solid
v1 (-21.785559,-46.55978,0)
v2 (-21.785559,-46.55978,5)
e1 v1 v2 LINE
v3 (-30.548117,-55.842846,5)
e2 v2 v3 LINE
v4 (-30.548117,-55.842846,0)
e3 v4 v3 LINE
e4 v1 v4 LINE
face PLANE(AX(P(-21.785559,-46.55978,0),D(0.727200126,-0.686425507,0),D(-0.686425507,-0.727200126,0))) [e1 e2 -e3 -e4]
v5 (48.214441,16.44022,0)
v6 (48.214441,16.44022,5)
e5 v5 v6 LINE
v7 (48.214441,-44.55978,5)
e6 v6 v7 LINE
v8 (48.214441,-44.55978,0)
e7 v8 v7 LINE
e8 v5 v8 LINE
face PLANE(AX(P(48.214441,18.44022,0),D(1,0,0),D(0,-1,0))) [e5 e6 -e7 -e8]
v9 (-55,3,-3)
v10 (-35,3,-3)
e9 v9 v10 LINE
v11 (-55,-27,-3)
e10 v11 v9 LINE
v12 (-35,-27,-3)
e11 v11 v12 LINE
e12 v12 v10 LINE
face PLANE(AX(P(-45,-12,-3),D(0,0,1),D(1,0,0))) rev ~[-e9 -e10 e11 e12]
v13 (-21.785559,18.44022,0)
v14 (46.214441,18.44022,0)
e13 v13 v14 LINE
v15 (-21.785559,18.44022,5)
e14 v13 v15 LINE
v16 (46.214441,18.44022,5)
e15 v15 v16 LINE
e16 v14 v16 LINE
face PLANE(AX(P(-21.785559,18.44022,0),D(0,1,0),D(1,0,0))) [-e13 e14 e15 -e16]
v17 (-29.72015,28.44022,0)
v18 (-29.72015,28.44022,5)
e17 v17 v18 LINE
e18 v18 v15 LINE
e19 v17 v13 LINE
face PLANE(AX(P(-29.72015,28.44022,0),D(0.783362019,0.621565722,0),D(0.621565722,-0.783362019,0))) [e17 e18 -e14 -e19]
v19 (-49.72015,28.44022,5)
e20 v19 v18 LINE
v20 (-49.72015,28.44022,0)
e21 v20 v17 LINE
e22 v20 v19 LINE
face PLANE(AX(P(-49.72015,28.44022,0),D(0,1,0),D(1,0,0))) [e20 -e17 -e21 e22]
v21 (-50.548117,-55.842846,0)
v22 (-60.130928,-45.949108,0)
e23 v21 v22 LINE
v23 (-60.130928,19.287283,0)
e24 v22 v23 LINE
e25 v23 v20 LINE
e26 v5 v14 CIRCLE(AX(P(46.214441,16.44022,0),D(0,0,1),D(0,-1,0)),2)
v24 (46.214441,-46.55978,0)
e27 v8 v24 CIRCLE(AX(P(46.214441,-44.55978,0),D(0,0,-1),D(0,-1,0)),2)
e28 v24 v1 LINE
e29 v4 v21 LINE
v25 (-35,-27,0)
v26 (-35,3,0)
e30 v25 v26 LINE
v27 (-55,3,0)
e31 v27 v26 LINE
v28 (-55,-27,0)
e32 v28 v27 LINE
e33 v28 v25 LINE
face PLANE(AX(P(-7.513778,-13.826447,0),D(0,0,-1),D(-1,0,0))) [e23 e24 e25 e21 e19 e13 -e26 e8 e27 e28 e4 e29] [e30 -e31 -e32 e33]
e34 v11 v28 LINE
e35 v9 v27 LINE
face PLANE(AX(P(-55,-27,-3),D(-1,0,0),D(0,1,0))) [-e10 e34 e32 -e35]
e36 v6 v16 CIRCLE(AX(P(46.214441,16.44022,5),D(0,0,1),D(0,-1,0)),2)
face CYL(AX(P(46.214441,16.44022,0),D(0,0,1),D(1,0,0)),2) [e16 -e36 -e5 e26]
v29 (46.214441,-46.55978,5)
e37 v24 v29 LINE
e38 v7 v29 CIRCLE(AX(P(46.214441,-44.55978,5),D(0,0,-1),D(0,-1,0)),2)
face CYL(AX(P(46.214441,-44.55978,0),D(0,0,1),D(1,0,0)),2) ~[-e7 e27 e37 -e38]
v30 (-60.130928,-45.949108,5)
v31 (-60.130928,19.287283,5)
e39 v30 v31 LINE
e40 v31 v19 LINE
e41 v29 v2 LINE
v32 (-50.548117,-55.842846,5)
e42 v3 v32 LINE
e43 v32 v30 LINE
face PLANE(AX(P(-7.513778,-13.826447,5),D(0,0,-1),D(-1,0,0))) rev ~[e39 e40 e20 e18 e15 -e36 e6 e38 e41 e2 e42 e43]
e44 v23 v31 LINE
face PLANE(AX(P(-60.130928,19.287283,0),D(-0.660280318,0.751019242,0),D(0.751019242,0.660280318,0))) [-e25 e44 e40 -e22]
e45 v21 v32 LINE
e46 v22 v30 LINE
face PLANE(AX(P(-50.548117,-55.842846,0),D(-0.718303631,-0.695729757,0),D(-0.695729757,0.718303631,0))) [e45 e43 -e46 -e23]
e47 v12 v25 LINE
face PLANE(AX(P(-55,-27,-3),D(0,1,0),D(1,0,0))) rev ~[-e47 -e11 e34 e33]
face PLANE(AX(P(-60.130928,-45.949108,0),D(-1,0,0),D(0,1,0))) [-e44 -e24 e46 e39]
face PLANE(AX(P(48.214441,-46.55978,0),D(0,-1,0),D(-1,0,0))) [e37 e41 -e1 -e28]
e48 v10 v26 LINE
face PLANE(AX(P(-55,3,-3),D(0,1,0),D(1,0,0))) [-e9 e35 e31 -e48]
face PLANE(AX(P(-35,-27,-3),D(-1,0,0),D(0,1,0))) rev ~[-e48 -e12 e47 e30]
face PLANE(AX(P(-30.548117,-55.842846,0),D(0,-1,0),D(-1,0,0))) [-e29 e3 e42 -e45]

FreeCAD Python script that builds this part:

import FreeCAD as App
import Part
import Sketcher
from FreeCAD import Vector


def edges_at(feature, points):
    """Names of the edges that pass closest to the given points."""
    edges = feature.Shape.Edges
    near = lambda p: min(range(len(edges)), key=lambda i: edges[i].distToShape(Part.Vertex(*p))[0])
    return sorted({f"Edge{near(p) + 1}" for p in points})

doc = App.newDocument("Part")
body = doc.addObject("PartDesign::Body", "Body")

sketch1 = body.newObject("Sketcher::SketchObject", "Sketch")
sketch1.AttachmentSupport = (doc.getObject("XY_Plane"), [""])
sketch1.MapMode = "FlatFace"
sketch1.AttachmentOffset = App.Placement(Vector(0, 0, -3), App.Rotation())
sketch1.addGeometry([
    Part.LineSegment(Vector(-55, 3, 0), Vector(-55, -27, 0)),
    Part.LineSegment(Vector(-55, -27, 0), Vector(-35, -27, 0)),
    Part.LineSegment(Vector(-35, -27, 0), Vector(-35, 3, 0)),
    Part.LineSegment(Vector(-35, 3, 0), Vector(-55, 3, 0)),
], False)
sketch1.addConstraint([
    Sketcher.Constraint("Coincident", 0, 2, 1, 1),
    Sketcher.Constraint("Coincident", 1, 2, 2, 1),
    Sketcher.Constraint("Coincident", 2, 2, 3, 1),
    Sketcher.Constraint("Coincident", 3, 2, 0, 1),
    Sketcher.Constraint("Vertical", 0),
    Sketcher.Constraint("Horizontal", 1),
    Sketcher.Constraint("Vertical", 2),
    Sketcher.Constraint("Horizontal", 3),
    Sketcher.Constraint("DistanceX", 1, 1, 1, 2, 20.0),
    Sketcher.Constraint("DistanceY", 0, 2, 0, 1, 30.0),
    Sketcher.Constraint("DistanceX", 0, 2, -1, 1, 55.0),
    Sketcher.Constraint("DistanceY", 0, 2, -1, 1, 27.0),
])
pad1 = body.newObject("PartDesign::Pad", "Pad")
pad1.Profile = sketch1
pad1.Length = 3
body2 = doc.addObject("PartDesign::Body", "Body001")

sketch2 = body2.newObject("Sketcher::SketchObject", "Sketch001")
sketch2.AttachmentSupport = (doc.getObject("XY_Plane001"), [""])
sketch2.MapMode = "FlatFace"
sketch2.addGeometry([
    Part.LineSegment(Vector(48, -47, 0), Vector(48, 18, 0)),
    Part.LineSegment(Vector(48, 18, 0), Vector(-22, 18, 0)),
    Part.LineSegment(Vector(-22, 18, 0), Vector(-30, 28, 0)),
    Part.LineSegment(Vector(-30, 28, 0), Vector(-50, 28, 0)),
    Part.LineSegment(Vector(-50, 28, 0), Vector(-60, 19, 0)),
    Part.LineSegment(Vector(-60, 19, 0), Vector(-60, -46, 0)),
    Part.LineSegment(Vector(-60, -46, 0), Vector(-51, -56, 0)),
    Part.LineSegment(Vector(-51, -56, 0), Vector(-31, -56, 0)),
    Part.LineSegment(Vector(-31, -56, 0), Vector(-22, -47, 0)),
    Part.LineSegment(Vector(-22, -47, 0), Vector(48, -47, 0)),
], False)
sketch2.addConstraint([
    Sketcher.Constraint("Coincident", 0, 2, 1, 1),
    Sketcher.Constraint("Coincident", 1, 2, 2, 1),
    Sketcher.Constraint("Coincident", 2, 2, 3, 1),
    Sketcher.Constraint("Coincident", 3, 2, 4, 1),
    Sketcher.Constraint("Coincident", 4, 2, 5, 1),
    Sketcher.Constraint("Coincident", 5, 2, 6, 1),
    Sketcher.Constraint("Coincident", 6, 2, 7, 1),
    Sketcher.Constraint("Coincident", 7, 2, 8, 1),
    Sketcher.Constraint("Coincident", 8, 2, 9, 1),
    Sketcher.Constraint("Coincident", 9, 2, 0, 1),
    Sketcher.Constraint("Vertical", 0),
    Sketcher.Constraint("Horizontal", 1),
    Sketcher.Constraint("Horizontal", 3),
    Sketcher.Constraint("Vertical", 5),
    Sketcher.Constraint("Horizontal", 7),
    Sketcher.Constraint("Horizontal", 9),
    Sketcher.Constraint("Vertical", 1, 2, 8, 2),
    Sketcher.Constraint("Equal", 3, 7),
    Sketcher.Constraint("Equal", 2, 8),
    Sketcher.Constraint("DistanceX", 1, 2, 1, 1, 70.0),
    Sketcher.Constraint("DistanceX", 3, 2, 3, 1, 20.0),
    Sketcher.Constraint("DistanceY", 0, 1, 0, 2, 65.0),
    Sketcher.Constraint("DistanceY", 1, 2, 2, 2, 10.0),
    Sketcher.Constraint("Distance", 4, 13.862199),
    Sketcher.Constraint("DistanceY", 5, 2, 5, 1, 65.236391),
    Sketcher.Constraint("Distance", 2, 12.76549),
    Sketcher.Constraint("DistanceX", -1, 1, 0, 2, 48.214441),
    Sketcher.Constraint("DistanceY", -1, 1, 0, 2, 18.44022),
    Sketcher.Constraint("DistanceY", 5, 2, -1, 1, 45.949108),
    Sketcher.Constraint("DistanceX", 5, 2, 6, 2, 9.582811),
])
pad2 = body2.newObject("PartDesign::Pad", "Pad001")
pad2.Profile = sketch2
pad2.Length = 5
doc.recompute()

boolean = body2.newObject("PartDesign::Boolean", "Boolean")
boolean.Type = "Fuse"
boolean.addObjects([body])
doc.recompute()

fillet = body2.newObject("PartDesign::Fillet", "Fillet")
fillet.Base = (boolean, edges_at(boolean, [(48.214, 18.44, 2.5), (48.214, -46.56, 2.5)]))
fillet.Radius = 2

doc.recompute()
